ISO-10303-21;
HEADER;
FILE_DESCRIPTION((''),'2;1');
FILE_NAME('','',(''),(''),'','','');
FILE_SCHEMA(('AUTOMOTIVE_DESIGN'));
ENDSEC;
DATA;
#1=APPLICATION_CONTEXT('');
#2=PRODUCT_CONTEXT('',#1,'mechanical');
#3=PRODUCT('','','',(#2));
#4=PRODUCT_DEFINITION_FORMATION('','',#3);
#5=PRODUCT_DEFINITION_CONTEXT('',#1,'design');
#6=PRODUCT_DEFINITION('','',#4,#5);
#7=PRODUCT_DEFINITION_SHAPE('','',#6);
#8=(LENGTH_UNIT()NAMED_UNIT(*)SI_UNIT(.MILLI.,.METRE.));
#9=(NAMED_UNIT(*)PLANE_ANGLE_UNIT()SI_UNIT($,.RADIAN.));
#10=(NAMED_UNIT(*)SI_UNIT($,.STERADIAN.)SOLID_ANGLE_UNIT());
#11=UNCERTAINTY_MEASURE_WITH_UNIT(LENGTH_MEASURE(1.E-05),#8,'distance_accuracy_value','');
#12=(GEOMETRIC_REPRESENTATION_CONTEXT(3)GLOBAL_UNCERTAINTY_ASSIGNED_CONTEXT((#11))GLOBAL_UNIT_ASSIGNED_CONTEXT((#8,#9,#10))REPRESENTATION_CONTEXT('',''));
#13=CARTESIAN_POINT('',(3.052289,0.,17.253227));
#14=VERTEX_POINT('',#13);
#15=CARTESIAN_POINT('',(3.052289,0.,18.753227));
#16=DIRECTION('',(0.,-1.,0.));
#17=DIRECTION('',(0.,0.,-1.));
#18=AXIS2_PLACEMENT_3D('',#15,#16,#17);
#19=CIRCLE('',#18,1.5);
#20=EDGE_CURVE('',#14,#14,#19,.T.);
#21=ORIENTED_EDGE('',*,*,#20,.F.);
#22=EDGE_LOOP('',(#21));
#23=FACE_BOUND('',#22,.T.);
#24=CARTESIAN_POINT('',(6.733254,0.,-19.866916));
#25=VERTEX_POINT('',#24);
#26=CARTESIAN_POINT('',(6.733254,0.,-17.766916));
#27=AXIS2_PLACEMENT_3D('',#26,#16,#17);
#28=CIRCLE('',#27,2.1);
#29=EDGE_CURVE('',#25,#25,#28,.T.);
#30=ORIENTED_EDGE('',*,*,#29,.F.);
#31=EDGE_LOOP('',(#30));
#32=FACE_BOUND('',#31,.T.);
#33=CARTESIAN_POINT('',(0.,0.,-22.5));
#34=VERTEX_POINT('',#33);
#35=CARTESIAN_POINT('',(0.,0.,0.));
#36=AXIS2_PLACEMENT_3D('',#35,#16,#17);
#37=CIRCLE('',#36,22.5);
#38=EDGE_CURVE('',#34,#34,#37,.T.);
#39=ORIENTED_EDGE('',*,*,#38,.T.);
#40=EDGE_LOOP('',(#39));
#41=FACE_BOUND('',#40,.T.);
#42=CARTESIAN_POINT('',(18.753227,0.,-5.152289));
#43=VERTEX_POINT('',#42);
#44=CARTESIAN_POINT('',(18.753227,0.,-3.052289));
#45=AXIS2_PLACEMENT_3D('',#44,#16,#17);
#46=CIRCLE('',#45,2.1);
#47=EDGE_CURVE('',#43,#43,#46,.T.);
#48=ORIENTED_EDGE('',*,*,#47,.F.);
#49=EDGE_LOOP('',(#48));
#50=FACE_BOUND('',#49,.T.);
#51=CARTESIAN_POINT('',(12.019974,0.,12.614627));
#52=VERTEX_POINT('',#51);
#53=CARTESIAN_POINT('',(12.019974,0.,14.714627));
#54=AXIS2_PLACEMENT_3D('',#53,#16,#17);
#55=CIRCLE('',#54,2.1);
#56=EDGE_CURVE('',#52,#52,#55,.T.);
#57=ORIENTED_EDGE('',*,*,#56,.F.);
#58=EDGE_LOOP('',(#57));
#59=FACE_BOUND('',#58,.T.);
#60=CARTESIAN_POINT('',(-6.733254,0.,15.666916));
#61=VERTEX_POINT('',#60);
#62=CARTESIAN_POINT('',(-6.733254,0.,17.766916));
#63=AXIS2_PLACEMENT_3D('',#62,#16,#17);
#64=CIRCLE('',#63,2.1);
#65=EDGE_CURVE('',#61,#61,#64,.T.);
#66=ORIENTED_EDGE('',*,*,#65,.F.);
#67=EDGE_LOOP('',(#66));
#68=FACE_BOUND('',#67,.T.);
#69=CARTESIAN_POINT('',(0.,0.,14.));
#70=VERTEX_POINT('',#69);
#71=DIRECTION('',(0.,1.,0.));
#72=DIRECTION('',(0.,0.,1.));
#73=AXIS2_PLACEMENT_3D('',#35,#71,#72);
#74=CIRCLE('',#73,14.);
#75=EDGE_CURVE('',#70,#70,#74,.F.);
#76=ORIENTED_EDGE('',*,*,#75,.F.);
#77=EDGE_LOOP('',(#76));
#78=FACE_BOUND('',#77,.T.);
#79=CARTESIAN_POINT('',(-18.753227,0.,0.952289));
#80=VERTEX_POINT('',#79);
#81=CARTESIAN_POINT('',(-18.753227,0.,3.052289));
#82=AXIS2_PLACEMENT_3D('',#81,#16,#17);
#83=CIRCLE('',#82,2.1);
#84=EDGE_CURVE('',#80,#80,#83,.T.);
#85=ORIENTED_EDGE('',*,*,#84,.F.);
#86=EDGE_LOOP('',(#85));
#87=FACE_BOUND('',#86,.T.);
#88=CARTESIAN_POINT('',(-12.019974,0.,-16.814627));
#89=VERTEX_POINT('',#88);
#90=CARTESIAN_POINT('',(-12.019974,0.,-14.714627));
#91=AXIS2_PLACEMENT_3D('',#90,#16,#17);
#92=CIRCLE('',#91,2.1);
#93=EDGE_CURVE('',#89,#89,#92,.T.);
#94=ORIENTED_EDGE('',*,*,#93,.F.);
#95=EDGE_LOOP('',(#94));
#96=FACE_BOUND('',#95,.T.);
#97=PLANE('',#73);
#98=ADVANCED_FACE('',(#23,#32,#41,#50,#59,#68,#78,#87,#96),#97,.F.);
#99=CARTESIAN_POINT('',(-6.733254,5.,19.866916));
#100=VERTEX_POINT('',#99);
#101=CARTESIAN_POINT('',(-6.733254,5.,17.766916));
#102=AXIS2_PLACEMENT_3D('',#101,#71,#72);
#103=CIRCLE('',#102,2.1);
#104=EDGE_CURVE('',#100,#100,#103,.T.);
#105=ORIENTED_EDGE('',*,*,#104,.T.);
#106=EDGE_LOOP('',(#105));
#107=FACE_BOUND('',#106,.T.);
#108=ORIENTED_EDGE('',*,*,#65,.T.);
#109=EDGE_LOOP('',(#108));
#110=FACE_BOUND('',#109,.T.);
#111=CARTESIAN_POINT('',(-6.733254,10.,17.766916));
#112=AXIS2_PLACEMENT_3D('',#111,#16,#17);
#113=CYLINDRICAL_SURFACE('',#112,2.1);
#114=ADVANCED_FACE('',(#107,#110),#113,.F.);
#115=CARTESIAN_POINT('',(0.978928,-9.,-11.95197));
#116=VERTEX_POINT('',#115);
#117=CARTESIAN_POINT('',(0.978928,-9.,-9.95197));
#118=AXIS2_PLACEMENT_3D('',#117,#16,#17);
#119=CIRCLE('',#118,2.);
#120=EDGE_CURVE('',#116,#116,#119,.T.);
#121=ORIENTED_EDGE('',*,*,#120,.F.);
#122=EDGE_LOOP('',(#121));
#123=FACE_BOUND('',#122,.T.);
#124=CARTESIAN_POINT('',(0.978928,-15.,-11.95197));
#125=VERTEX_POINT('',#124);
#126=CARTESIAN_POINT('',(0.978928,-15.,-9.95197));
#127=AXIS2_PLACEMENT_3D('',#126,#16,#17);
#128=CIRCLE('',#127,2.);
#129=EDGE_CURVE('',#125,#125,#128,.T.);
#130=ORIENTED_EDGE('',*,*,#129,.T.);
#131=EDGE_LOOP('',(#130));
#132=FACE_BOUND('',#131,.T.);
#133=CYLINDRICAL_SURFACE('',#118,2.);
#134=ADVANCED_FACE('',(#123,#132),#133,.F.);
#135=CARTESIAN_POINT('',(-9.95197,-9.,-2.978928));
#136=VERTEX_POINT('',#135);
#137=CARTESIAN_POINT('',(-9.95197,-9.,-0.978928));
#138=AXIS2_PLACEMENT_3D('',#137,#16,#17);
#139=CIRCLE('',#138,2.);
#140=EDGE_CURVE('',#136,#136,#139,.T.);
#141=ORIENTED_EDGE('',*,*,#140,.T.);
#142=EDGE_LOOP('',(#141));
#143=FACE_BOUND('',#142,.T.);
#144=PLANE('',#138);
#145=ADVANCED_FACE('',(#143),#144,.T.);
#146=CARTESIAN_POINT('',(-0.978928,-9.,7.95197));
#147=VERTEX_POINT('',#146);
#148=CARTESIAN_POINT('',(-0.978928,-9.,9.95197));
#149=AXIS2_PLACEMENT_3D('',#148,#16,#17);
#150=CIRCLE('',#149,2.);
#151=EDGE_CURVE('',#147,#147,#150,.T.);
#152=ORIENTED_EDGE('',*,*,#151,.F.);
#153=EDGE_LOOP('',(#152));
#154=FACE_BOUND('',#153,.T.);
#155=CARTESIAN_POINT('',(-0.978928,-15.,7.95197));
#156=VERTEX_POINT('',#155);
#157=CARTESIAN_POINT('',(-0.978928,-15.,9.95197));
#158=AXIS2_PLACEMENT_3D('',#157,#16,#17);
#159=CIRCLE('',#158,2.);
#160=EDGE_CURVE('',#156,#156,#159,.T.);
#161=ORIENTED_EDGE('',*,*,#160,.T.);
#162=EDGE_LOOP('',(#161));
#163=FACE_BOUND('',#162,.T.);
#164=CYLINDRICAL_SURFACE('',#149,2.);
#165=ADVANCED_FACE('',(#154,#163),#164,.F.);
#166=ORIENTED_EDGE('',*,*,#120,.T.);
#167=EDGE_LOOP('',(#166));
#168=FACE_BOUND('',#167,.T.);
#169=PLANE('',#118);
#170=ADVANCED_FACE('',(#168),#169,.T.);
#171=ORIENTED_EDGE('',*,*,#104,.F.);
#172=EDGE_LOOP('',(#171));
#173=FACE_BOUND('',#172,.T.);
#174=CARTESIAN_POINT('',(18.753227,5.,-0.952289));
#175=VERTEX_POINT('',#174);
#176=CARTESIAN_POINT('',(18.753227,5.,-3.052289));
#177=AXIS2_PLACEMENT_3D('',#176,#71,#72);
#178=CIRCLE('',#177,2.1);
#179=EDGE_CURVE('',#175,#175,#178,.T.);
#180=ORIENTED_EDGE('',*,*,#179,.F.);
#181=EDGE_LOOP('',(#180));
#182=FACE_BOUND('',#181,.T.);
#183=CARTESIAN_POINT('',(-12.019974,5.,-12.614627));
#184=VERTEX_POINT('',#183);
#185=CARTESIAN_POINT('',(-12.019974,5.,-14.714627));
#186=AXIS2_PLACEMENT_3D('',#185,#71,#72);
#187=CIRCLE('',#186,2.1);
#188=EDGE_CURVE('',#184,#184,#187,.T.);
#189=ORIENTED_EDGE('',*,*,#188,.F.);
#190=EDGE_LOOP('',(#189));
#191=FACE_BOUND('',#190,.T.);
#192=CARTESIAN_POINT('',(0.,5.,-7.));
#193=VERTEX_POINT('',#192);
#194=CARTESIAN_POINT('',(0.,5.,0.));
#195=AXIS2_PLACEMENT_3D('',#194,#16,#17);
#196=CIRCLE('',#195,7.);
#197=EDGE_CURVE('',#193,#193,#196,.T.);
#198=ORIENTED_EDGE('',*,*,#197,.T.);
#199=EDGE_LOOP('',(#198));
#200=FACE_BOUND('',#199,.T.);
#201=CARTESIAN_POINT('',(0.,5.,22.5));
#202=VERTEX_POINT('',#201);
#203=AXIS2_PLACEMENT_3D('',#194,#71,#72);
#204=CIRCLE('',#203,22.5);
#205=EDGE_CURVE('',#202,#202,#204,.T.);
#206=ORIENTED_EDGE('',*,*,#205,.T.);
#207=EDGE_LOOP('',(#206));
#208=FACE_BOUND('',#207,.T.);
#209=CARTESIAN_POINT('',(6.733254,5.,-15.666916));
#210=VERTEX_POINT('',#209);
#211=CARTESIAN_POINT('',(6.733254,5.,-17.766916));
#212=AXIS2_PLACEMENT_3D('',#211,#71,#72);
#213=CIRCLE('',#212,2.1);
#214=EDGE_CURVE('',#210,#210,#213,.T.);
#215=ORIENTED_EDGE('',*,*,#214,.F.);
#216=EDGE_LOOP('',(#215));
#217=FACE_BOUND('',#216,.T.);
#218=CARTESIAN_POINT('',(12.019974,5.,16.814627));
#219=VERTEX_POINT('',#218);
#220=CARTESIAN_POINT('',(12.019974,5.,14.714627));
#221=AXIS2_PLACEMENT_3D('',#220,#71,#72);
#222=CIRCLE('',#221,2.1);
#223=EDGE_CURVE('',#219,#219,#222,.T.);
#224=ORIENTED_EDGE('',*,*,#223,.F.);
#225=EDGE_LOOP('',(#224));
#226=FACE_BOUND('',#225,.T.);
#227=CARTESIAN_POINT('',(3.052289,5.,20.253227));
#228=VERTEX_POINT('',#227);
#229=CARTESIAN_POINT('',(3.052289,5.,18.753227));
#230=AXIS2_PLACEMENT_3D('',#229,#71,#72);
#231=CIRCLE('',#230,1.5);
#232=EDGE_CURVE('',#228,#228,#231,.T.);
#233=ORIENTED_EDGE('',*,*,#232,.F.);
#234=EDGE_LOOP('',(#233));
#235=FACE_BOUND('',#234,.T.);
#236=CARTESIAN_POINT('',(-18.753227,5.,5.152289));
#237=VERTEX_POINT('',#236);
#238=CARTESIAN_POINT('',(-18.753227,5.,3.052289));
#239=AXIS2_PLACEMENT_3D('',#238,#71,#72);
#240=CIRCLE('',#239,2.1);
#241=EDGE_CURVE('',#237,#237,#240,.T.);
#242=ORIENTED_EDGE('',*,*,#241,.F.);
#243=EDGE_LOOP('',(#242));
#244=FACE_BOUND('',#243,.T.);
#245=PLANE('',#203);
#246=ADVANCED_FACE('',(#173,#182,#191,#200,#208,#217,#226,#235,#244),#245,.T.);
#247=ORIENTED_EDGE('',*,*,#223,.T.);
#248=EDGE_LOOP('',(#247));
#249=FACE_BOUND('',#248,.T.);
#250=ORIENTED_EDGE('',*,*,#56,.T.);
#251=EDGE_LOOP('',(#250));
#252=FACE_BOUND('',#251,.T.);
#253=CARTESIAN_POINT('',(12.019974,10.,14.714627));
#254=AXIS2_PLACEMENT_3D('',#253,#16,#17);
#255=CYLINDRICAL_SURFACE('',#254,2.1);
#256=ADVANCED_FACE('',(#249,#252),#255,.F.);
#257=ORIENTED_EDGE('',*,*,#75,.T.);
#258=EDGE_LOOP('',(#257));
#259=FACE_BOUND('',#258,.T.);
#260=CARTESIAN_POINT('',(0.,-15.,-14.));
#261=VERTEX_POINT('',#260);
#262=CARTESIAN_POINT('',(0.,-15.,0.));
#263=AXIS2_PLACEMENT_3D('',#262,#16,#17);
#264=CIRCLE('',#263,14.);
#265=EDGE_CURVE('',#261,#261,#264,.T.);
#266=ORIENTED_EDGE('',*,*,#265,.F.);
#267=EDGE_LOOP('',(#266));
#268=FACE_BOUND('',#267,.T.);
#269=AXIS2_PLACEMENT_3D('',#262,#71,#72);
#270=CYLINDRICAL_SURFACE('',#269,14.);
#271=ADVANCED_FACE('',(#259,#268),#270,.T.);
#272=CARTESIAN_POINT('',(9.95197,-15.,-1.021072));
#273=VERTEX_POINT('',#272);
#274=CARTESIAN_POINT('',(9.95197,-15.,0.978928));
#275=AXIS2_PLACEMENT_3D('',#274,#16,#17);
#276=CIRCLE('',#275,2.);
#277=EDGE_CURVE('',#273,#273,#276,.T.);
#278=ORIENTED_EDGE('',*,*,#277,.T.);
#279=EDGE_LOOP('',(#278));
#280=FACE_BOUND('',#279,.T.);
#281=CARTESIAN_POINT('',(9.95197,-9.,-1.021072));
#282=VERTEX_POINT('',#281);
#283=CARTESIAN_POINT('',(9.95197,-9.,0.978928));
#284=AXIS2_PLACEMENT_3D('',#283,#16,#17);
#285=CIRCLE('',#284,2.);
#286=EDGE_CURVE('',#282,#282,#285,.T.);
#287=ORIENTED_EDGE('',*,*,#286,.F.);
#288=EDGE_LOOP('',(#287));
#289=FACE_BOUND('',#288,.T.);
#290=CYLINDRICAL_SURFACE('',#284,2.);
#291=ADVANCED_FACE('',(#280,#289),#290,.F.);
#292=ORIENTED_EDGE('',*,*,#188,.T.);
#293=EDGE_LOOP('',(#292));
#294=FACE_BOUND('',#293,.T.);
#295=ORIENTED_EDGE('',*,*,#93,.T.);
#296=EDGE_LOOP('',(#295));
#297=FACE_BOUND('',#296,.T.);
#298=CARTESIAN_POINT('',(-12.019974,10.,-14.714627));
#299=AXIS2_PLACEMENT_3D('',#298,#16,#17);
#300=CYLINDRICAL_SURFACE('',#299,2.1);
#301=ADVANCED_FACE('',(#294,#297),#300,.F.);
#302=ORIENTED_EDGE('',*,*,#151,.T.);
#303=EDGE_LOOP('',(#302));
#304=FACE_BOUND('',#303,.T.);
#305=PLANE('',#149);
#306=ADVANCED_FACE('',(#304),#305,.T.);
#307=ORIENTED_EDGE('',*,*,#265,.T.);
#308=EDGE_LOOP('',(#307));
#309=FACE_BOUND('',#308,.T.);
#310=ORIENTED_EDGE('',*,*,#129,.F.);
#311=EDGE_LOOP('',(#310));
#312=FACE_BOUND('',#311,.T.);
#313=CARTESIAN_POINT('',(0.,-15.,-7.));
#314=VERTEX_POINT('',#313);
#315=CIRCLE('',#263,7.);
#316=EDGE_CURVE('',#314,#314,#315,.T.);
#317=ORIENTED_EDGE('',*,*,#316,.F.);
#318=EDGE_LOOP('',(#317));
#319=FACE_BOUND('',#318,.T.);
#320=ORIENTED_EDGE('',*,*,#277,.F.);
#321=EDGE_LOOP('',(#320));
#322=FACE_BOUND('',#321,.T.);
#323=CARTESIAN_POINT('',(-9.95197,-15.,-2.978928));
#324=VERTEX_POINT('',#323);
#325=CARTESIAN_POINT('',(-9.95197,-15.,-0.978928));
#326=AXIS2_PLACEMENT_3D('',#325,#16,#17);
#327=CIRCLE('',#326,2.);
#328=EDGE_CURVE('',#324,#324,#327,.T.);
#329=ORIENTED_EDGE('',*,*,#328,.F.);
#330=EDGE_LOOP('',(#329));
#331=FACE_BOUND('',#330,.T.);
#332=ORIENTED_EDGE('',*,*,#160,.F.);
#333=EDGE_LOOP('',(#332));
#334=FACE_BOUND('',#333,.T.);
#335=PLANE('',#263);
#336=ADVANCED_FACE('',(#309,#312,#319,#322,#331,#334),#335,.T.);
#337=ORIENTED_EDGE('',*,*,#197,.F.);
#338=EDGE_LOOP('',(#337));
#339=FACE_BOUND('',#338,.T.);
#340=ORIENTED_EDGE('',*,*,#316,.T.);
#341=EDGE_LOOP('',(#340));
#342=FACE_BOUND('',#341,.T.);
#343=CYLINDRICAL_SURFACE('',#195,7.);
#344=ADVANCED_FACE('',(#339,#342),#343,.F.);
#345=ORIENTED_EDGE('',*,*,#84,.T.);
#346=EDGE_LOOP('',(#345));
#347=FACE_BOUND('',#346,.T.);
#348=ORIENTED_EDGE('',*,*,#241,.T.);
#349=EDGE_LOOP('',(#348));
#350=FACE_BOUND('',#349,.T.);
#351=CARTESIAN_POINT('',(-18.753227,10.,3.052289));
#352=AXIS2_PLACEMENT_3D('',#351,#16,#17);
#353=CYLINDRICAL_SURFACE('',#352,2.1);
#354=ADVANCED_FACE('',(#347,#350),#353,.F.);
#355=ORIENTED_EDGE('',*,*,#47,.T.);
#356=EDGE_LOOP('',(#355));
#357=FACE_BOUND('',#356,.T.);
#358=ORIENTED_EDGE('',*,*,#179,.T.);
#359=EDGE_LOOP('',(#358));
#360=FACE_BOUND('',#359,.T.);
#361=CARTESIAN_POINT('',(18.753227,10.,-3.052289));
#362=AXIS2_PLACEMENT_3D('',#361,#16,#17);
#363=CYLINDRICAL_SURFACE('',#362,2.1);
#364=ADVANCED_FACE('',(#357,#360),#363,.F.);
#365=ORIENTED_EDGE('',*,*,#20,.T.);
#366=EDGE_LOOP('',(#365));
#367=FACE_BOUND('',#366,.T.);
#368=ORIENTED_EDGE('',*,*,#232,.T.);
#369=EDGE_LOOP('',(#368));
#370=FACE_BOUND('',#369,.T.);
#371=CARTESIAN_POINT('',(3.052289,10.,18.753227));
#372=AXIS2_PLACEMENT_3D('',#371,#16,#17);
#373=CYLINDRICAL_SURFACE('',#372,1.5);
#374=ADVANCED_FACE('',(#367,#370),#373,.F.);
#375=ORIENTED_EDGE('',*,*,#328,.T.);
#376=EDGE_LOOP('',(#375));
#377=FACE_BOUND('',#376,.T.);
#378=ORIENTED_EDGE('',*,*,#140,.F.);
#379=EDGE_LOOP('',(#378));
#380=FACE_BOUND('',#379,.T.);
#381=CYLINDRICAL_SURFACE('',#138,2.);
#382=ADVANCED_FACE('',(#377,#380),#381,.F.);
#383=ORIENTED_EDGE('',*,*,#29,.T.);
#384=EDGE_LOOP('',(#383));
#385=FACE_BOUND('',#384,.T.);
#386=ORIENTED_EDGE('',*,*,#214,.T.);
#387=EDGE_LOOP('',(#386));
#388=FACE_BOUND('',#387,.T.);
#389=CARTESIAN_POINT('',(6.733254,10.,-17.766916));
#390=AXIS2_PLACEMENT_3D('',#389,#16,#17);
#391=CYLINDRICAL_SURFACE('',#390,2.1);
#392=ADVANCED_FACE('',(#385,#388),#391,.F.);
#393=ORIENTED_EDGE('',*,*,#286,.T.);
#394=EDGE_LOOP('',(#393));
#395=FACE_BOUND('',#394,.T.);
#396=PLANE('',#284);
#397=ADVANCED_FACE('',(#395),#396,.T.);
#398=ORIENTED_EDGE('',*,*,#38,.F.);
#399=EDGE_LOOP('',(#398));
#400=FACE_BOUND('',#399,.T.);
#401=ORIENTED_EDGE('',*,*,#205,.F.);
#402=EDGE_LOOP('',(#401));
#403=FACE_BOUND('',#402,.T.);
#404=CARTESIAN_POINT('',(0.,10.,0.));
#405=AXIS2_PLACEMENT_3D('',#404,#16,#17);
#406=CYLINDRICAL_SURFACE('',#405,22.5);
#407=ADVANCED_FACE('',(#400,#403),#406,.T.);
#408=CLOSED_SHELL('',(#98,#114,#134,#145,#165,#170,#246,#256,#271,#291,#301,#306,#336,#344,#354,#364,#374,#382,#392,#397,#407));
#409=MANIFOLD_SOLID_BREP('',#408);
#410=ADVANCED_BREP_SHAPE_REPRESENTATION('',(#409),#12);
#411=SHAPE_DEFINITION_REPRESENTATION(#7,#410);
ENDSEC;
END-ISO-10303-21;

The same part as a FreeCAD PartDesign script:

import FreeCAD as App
import Part
import Sketcher

V = App.Vector
Q = App.Units.Quantity

doc = App.newDocument("Part")
body = doc.addObject("PartDesign::Body", "Body")

# Sketch on XZ plane
sketch1 = body.newObject("Sketcher::SketchObject", "Sketch")
sketch1.AttachmentSupport = (doc.getObject("XZ_Plane"), [""])
sketch1.MapMode = "FlatFace"
sketch1.addGeometry(Part.Circle(V(0, 0, 0), V(0, 0, 1), 30), False)
sketch1.addConstraint([
    Sketcher.Constraint("Coincident", 0, 3, -1, 1),
    Sketcher.Constraint("Diameter", 0, Q("60 mm")),
])
pad1 = body.newObject("PartDesign::Pad", "Pad")
pad1.Profile = sketch1
pad1.Length = 5
pad1.Reversed = True

# Sketch on XZ plane
sketch2 = body.newObject("Sketcher::SketchObject", "Sketch001")
sketch2.AttachmentSupport = (doc.getObject("XZ_Plane"), [""])
sketch2.MapMode = "FlatFace"
sketch2.addGeometry([
    Part.Circle(V(0, 0, 0), V(0, 0, 1), 30),  # 0
    Part.Circle(V(0, 0, 0), V(0, 0, 1), 22.5),  # 1
    Part.Circle(V(-12, -14.7, 0), V(0, 0, 1), 2.1),  # 2
    Part.Circle(V(6.7, -17.8, 0), V(0, 0, 1), 2.1),  # 3
    Part.Circle(V(18.8, -3.1, 0), V(0, 0, 1), 2.1),  # 4
    Part.Circle(V(12, 14.7, 0), V(0, 0, 1), 2.1),  # 5
    Part.Circle(V(3.1, 18.8, 0), V(0, 0, 1), 1.5),  # 6
    Part.Circle(V(-6.7, 17.8, 0), V(0, 0, 1), 2.1),  # 7
    Part.Circle(V(-18.8, 3.1, 0), V(0, 0, 1), 2.1),  # 8
], False)
sketch2.addConstraint([
    Sketcher.Constraint("Coincident", 0, 3, -1, 1),
    Sketcher.Constraint("Coincident", 1, 3, -1, 1),
    Sketcher.Constraint("Equal", 2, 3),
    Sketcher.Constraint("Equal", 3, 4),
    Sketcher.Constraint("Equal", 4, 5),
    Sketcher.Constraint("Equal", 5, 7),
    Sketcher.Constraint("Equal", 7, 8),
    Sketcher.Constraint("Symmetric", 2, 3, 5, 3, -1, 1),
    Sketcher.Constraint("Symmetric", 3, 3, 7, 3, -1, 1),
    Sketcher.Constraint("Symmetric", 4, 3, 8, 3, -1, 1),
    Sketcher.Constraint("Diameter", 0, Q("60 mm")),
    Sketcher.Constraint("Diameter", 1, Q("45 mm")),
    Sketcher.Constraint("Diameter", 6, Q("3 mm")),
    Sketcher.Constraint("Diameter", 2, Q("4.2 mm")),
    Sketcher.Constraint("DistanceX", 2, 3, 4, 3, Q("30.773201 mm")),
    Sketcher.Constraint("DistanceY", 5, 3, 6, 3, Q("4.038601 mm")),
    Sketcher.Constraint("DistanceY", 4, 3, -1, 1, Q("3.052289 mm")),
    Sketcher.Constraint("DistanceX", -1, 1, 6, 3, Q("3.052289 mm")),
    Sketcher.Constraint("DistanceY", 3, 3, 2, 3, Q("3.052289 mm")),
    Sketcher.Constraint("DistanceX", 3, 3, 5, 3, Q("5.28672 mm")),
    Sketcher.Constraint("DistanceX", 2, 3, -1, 1, Q("12.019974 mm")),
    Sketcher.Constraint("DistanceY", 2, 3, -1, 1, Q("14.714627 mm")),
])
pocket1 = body.newObject("PartDesign::Pocket", "Pocket")
pocket1.Profile = sketch2
pocket1.Length = 10

# Sketch on XZ plane
sketch3 = body.newObject("Sketcher::SketchObject", "Sketch002")
sketch3.AttachmentSupport = (doc.getObject("XZ_Plane"), [""])
sketch3.MapMode = "FlatFace"
sketch3.addGeometry(Part.Circle(V(0, 0, 0), V(0, 0, 1), 14), False)
sketch3.addConstraint([
    Sketcher.Constraint("Coincident", 0, 3, -1, 1),
    Sketcher.Constraint("Diameter", 0, Q("28 mm")),
])
pad2 = body.newObject("PartDesign::Pad", "Pad001")
pad2.Profile = sketch3
pad2.Length = 15

# Sketch on XZ plane
sketch4 = body.newObject("Sketcher::SketchObject", "Sketch003")
sketch4.AttachmentSupport = (doc.getObject("XZ_Plane"), [""])
sketch4.MapMode = "FlatFace"
sketch4.AttachmentOffset = App.Placement(V(0, 0, 15), App.Rotation())
sketch4.addGeometry([
    Part.Circle(V(-1, 10, 0), V(0, 0, 1), 2),
    Part.Circle(V(-10, -1, 0), V(0, 0, 1), 2),
    Part.Circle(V(1, -10, 0), V(0, 0, 1), 2),
    Part.Circle(V(10, 1, 0), V(0, 0, 1), 2),
], False)
sketch4.addConstraint([
    Sketcher.Constraint("Equal", 0, 1),
    Sketcher.Constraint("Equal", 1, 2),
    Sketcher.Constraint("Equal", 2, 3),
    Sketcher.Constraint("Symmetric", 0, 3, 2, 3, -1, 1),
    Sketcher.Constraint("Symmetric", 1, 3, 3, 3, -1, 1),
    Sketcher.Constraint("Diameter", 0, Q("4 mm")),
    Sketcher.Constraint("DistanceY", -1, 1, 0, 3, Q("9.95197 mm")),
    Sketcher.Constraint("DistanceX", 1, 3, -1, 1, Q("9.95197 mm")),
    Sketcher.Constraint("DistanceX", 1, 3, 0, 3, Q("8.973042 mm")),
    Sketcher.Constraint("DistanceY", 2, 3, 1, 3, Q("8.973042 mm")),
])
pocket2 = body.newObject("PartDesign::Pocket", "Pocket001")
pocket2.Profile = sketch4
pocket2.Length = 6

# Sketch on XZ plane
sketch5 = body.newObject("Sketcher::SketchObject", "Sketch004")
sketch5.AttachmentSupport = (doc.getObject("XZ_Plane"), [""])
sketch5.MapMode = "FlatFace"
sketch5.AttachmentOffset = App.Placement(V(0, 0, 15), App.Rotation())
sketch5.addGeometry(Part.Circle(V(0, 0, 0), V(0, 0, 1), 7), False)
sketch5.addConstraint([
    Sketcher.Constraint("Coincident", 0, 3, -1, 1),
    Sketcher.Constraint("Diameter", 0, Q("14 mm")),
])
pocket3 = body.newObject("PartDesign::Pocket", "Pocket002")
pocket3.Profile = sketch5
pocket3.Type = "ThroughAll"

doc.recompute()
